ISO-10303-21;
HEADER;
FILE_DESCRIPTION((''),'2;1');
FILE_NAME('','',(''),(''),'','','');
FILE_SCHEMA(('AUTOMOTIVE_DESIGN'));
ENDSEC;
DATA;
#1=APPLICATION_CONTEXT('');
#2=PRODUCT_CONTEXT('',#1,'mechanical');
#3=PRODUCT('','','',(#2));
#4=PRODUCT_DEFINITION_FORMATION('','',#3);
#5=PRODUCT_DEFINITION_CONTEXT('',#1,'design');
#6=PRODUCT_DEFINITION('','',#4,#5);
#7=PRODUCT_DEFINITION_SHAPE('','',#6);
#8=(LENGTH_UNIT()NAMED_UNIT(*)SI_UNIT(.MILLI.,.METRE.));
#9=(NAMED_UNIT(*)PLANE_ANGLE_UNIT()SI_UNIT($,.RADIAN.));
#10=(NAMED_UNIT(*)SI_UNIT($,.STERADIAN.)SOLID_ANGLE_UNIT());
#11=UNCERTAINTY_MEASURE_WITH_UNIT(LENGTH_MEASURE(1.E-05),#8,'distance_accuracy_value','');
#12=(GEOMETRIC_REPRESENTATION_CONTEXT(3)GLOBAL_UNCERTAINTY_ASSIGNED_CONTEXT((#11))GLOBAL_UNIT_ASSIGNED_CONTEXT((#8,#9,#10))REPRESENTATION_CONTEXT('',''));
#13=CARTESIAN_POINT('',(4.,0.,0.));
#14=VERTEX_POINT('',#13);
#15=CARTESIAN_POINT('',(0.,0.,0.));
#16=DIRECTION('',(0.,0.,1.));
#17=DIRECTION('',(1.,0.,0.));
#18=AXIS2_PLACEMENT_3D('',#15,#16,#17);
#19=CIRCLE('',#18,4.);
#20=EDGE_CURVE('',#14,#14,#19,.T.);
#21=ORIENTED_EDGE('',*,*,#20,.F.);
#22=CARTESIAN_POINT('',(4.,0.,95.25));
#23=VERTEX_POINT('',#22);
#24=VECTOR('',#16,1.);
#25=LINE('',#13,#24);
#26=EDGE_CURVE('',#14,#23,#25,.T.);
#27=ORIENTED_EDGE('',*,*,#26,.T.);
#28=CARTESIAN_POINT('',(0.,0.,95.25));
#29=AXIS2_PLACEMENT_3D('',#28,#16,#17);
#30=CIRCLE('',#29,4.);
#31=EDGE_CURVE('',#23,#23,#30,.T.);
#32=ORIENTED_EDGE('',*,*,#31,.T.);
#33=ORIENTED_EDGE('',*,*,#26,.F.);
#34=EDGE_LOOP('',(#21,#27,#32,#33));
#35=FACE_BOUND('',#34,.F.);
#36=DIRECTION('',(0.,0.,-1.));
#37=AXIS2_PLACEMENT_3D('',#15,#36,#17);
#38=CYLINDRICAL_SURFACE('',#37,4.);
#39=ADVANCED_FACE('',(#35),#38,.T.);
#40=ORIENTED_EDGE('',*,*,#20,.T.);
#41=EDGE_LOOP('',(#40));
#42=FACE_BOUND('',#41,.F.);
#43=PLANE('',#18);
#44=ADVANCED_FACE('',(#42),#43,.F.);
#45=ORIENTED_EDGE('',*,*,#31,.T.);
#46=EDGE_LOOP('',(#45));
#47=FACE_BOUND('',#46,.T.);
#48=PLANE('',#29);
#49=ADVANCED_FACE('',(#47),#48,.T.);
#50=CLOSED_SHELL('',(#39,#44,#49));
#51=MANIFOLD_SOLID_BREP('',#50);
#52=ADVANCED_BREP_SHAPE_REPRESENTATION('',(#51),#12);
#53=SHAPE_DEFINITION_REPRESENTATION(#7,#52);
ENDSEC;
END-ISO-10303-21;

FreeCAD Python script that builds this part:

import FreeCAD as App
import Part
import Sketcher
from FreeCAD import Vector
Q = App.Units.Quantity

doc = App.newDocument("Part")
body = doc.addObject("PartDesign::Body", "Body")

sketch1 = body.newObject("Sketcher::SketchObject", "Sketch")
sketch1.AttachmentSupport = (doc.getObject("XY_Plane"), [""])
sketch1.MapMode = "FlatFace"
sketch1.addGeometry(Part.Circle(Vector(0, 0, 0), Vector(0, 0, 1), 4), False)
sketch1.addConstraint(Sketcher.Constraint("Coincident", 0, 3, -1, 1))
sketch1.addConstraint(Sketcher.Constraint("Diameter", 0, Q("8 mm")))
pad1 = body.newObject("PartDesign::Pad", "Pad")
pad1.Profile = sketch1
pad1.Length = 95.25

doc.recompute()
